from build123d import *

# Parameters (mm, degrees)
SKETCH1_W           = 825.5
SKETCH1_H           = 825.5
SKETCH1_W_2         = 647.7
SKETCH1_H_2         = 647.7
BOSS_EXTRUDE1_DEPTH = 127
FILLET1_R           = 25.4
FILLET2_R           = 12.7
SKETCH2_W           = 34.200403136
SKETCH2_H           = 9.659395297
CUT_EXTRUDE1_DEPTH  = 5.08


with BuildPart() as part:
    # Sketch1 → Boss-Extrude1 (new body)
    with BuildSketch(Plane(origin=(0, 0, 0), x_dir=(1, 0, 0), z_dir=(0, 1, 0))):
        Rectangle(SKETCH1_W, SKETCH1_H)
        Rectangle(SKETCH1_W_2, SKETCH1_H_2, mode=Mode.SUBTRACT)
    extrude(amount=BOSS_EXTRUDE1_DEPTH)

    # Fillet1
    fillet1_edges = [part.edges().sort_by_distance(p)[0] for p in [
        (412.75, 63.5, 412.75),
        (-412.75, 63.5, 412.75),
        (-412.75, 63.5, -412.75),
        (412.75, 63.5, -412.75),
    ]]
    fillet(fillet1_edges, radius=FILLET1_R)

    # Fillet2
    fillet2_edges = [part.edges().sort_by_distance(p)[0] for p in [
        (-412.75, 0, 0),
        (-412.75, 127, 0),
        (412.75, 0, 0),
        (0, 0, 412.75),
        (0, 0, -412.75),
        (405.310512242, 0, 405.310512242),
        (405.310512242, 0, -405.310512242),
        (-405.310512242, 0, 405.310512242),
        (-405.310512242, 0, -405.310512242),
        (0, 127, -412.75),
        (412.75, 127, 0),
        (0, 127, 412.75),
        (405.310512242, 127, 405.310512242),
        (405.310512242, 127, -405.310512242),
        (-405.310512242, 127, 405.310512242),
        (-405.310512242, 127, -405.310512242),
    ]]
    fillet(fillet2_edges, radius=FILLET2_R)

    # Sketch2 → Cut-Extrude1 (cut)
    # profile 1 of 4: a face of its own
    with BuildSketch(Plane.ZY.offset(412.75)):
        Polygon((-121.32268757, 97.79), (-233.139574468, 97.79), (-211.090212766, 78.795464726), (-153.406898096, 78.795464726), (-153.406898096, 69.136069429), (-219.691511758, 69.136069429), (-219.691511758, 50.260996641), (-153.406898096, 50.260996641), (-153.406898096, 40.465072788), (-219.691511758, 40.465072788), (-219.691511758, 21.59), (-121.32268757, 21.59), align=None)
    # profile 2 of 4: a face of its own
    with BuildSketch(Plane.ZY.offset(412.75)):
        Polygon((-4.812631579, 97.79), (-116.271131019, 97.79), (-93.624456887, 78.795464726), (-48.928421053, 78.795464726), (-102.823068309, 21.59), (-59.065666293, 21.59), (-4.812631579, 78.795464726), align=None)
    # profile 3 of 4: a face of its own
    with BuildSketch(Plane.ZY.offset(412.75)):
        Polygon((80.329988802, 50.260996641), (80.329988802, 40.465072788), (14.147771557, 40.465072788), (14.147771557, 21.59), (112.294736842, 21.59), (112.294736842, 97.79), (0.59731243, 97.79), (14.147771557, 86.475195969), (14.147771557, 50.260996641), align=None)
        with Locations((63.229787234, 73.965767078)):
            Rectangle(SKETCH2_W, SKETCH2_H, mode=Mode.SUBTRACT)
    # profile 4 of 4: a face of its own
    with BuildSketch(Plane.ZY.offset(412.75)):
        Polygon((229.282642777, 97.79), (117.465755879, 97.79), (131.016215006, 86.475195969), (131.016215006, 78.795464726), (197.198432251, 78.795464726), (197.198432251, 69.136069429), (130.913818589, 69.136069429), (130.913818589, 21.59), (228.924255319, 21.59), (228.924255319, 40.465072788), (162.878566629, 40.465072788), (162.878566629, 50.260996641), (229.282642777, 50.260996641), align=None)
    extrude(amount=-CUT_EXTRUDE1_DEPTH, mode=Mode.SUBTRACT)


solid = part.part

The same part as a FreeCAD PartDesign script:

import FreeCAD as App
import Part
import Sketcher
Q = App.Units.Quantity


def edges_at(feature, points):
    """Names of the edges that pass closest to the given points."""
    edges = feature.Shape.Edges
    near = lambda p: min(range(len(edges)), key=lambda i: edges[i].distToShape(Part.Vertex(*p))[0])
    return sorted({f"Edge{near(p) + 1}" for p in points})


def add_polygon(sketch, points):
    """Adds a closed chain of lines whose ends are joined by coincident constraints."""
    first, n = sketch.GeometryCount, len(points)
    for a, b in zip(points, points[1:] + points[:1]):
        sketch.addGeometry(Part.LineSegment(App.Vector(*a, 0), App.Vector(*b, 0)), False)
    for i in range(n):
        sketch.addConstraint(Sketcher.Constraint("Coincident", first + i, 2, first + (i + 1) % n, 1))

doc = App.newDocument("Part")
params = doc.addObject("Spreadsheet::Sheet", "Params")
for row, (alias, value) in enumerate([
    ("sketch1_width", "32.5 in"),
    ("sketch1_width2", "25.5 in"),
    ("pad1_length", "5 in"),
    ("fillet_radius", "1 in"),
    ("fillet2_radius", "0.5 in"),
    ("sketch2_width", "3 in"),
    ("pocket1_length", "0.2 in"),
], start=1):
    params.set(f"A{row}", alias)
    params.set(f"B{row}", "=" + value)
    params.setAlias(f"B{row}", alias)

body = doc.addObject("PartDesign::Body", "Body")

sketch1 = body.newObject("Sketcher::SketchObject", "Sketch")
sketch1.AttachmentSupport = (doc.getObject("XZ_Plane"), [""])
sketch1.MapMode = "FlatFace"
add_polygon(sketch1, [(-413, -413), (-413, 413), (413, 413), (413, -413)])
add_polygon(sketch1, [(324, 324), (-324, 324), (-324, -324), (324, -324)])
sketch1.addConstraint(Sketcher.Constraint("Vertical", 0))
sketch1.addConstraint(Sketcher.Constraint("Horizontal", 1))
sketch1.addConstraint(Sketcher.Constraint("Vertical", 2))
sketch1.addConstraint(Sketcher.Constraint("Horizontal", 3))
sketch1.addConstraint(Sketcher.Constraint("Horizontal", 4))
sketch1.addConstraint(Sketcher.Constraint("Vertical", 5))
sketch1.addConstraint(Sketcher.Constraint("Horizontal", 6))
sketch1.addConstraint(Sketcher.Constraint("Vertical", 7))
sketch1.addConstraint(Sketcher.Constraint("Symmetric", 0, 2, 2, 2, -1, 1))
sketch1.addConstraint(Sketcher.Constraint("Symmetric", 4, 2, 6, 2, -1, 1))
sketch1.addConstraint(Sketcher.Constraint("Equal", 3, 0))
sketch1.addConstraint(Sketcher.Constraint("Equal", 6, 5))
sketch1.addConstraint(Sketcher.Constraint("DistanceX", 1, 1, 1, 2, Q("32.5 in")))
sketch1.addConstraint(Sketcher.Constraint("DistanceX", 4, 2, 4, 1, Q("25.5 in")))
sketch1.setExpression("Constraints[20]", "Params.sketch1_width")
sketch1.setExpression("Constraints[21]", "Params.sketch1_width2")
pad1 = body.newObject("PartDesign::Pad", "Pad")
pad1.Profile = sketch1
pad1.setExpression("Length", "Params.pad1_length")
pad1.Reversed = True
doc.recompute()

fillet = body.newObject("PartDesign::Fillet", "Fillet")
fillet.Base = (pad1, edges_at(pad1, [
    (412.75, 63.5, 412.75),
    (-412.75, 63.5, 412.75),
    (-412.75, 63.5, -412.75),
    (412.75, 63.5, -412.75),
]))
fillet.setExpression("Radius", "Params.fillet_radius")
doc.recompute()

fillet2 = body.newObject("PartDesign::Fillet", "Fillet001")
fillet2.Base = (fillet, edges_at(fillet, [
    (-412.75, 0, 0),
    (-412.75, 127, 0),
    (412.75, 0, 0),
    (0, 0, 412.75),
    (0, 0, -412.75),
    (405.311, 0, 405.311),
    (405.311, 0, -405.311),
    (-405.311, 0, 405.311),
    (-405.311, 0, -405.311),
    (0, 127, -412.75),
    (412.75, 127, 0),
    (0, 127, 412.75),
    (405.311, 127, 405.311),
    (405.311, 127, -405.311),
    (-405.311, 127, 405.311),
    (-405.311, 127, -405.311),
]))
fillet2.setExpression("Radius", "Params.fillet2_radius")

sketch2 = body.newObject("Sketcher::SketchObject", "Sketch001")
sketch2.AttachmentSupport = (doc.getObject("YZ_Plane"), [""])
sketch2.MapMode = "FlatFace"
sketch2.AttachmentOffset = App.Placement(App.Vector(0, 0, -16.25 * 25.4), App.Rotation())
add_polygon(sketch2, [(98, -121), (98, -233), (79, -211), (79, -153), (69, -153), (69, -220), (50, -220), (50, -153), (40, -153), (40, -220), (22, -220), (22, -121)])
add_polygon(sketch2, [(98, -5), (98, -116), (79, -94), (79, -49), (22, -103), (22, -59), (79, -5)])
add_polygon(sketch2, [(50, 80), (40, 80), (40, 14), (22, 14), (22, 112), (98, 112), (98, 1), (86, 14), (50, 14)])
add_polygon(sketch2, [(69, 80), (69, 46), (79, 46), (79, 80)])
add_polygon(sketch2, [(98, 229), (98, 117), (86, 131), (79, 131), (79, 197), (69, 197), (69, 131), (22, 131), (22, 229), (40, 229), (40, 163), (50, 163), (50, 229)])
sketch2.addConstraint(Sketcher.Constraint("Vertical", 0))
sketch2.addConstraint(Sketcher.Constraint("Vertical", 2))
sketch2.addConstraint(Sketcher.Constraint("Horizontal", 3))
sketch2.addConstraint(Sketcher.Constraint("Vertical", 4))
sketch2.addConstraint(Sketcher.Constraint("Horizontal", 5))
sketch2.addConstraint(Sketcher.Constraint("Vertical", 6))
sketch2.addConstraint(Sketcher.Constraint("Horizontal", 7))
sketch2.addConstraint(Sketcher.Constraint("Vertical", 8))
sketch2.addConstraint(Sketcher.Constraint("Horizontal", 9))
sketch2.addConstraint(Sketcher.Constraint("Vertical", 10))
sketch2.addConstraint(Sketcher.Constraint("Horizontal", 11))
sketch2.addConstraint(Sketcher.Constraint("Vertical", 12))
sketch2.addConstraint(Sketcher.Constraint("Vertical", 14))
sketch2.addConstraint(Sketcher.Constraint("Vertical", 16))
sketch2.addConstraint(Sketcher.Constraint("Horizontal", 18))
sketch2.addConstraint(Sketcher.Constraint("Horizontal", 19))
sketch2.addConstraint(Sketcher.Constraint("Vertical", 20))
sketch2.addConstraint(Sketcher.Constraint("Horizontal", 21))
sketch2.addConstraint(Sketcher.Constraint("Vertical", 22))
sketch2.addConstraint(Sketcher.Constraint("Horizontal", 23))
sketch2.addConstraint(Sketcher.Constraint("Vertical", 24))
sketch2.addConstraint(Sketcher.Constraint("Horizontal", 26))
sketch2.addConstraint(Sketcher.Constraint("Vertical", 27))
sketch2.addConstraint(Sketcher.Constraint("Vertical", 28))
sketch2.addConstraint(Sketcher.Constraint("Horizontal", 29))
sketch2.addConstraint(Sketcher.Constraint("Vertical", 30))
sketch2.addConstraint(Sketcher.Constraint("Horizontal", 31))
sketch2.addConstraint(Sketcher.Constraint("Vertical", 32))
sketch2.addConstraint(Sketcher.Constraint("Horizontal", 34))
sketch2.addConstraint(Sketcher.Constraint("Vertical", 35))
sketch2.addConstraint(Sketcher.Constraint("Horizontal", 36))
sketch2.addConstraint(Sketcher.Constraint("Vertical", 37))
sketch2.addConstraint(Sketcher.Constraint("Horizontal", 38))
sketch2.addConstraint(Sketcher.Constraint("Vertical", 39))
sketch2.addConstraint(Sketcher.Constraint("Horizontal", 40))
sketch2.addConstraint(Sketcher.Constraint("Vertical", 41))
sketch2.addConstraint(Sketcher.Constraint("Horizontal", 42))
sketch2.addConstraint(Sketcher.Constraint("Vertical", 43))
sketch2.addConstraint(Sketcher.Constraint("Horizontal", 44))
sketch2.addConstraint(Sketcher.Constraint("Parallel", 25, 33))
sketch2.addConstraint(Sketcher.Constraint("Horizontal", 3, 2, 6, 2))
sketch2.addConstraint(Sketcher.Constraint("Horizontal", 5, 2, 8, 2))
sketch2.addConstraint(Sketcher.Constraint("Horizontal", 21, 2, 25, 2))
sketch2.addConstraint(Sketcher.Constraint("Horizontal", 27, 2, 30, 2))
sketch2.addConstraint(Sketcher.Constraint("Vertical", 11, 2, 12, 2))
sketch2.addConstraint(Sketcher.Constraint("Vertical", 2, 2, 13, 2))
sketch2.addConstraint(Sketcher.Constraint("Vertical", 10, 2, 15, 2))
sketch2.addConstraint(Sketcher.Constraint("Vertical", 14, 2, 17, 2))
sketch2.addConstraint(Sketcher.Constraint("Vertical", 8, 2, 19, 2))
sketch2.addConstraint(Sketcher.Constraint("Vertical", 16, 2, 21, 2))
sketch2.addConstraint(Sketcher.Constraint("Vertical", 18, 2, 23, 2))
sketch2.addConstraint(Sketcher.Constraint("Vertical", 6, 2, 26, 2))
sketch2.addConstraint(Sketcher.Constraint("Vertical", 4, 2, 28, 2))
sketch2.addConstraint(Sketcher.Constraint("Vertical", 17, 2, 29, 2))
sketch2.addConstraint(Sketcher.Constraint("Vertical", 24, 2, 32, 2))
sketch2.addConstraint(Sketcher.Constraint("Vertical", 25, 2, 33, 2))
sketch2.addConstraint(Sketcher.Constraint("Vertical", 30, 2, 34, 2))
sketch2.addConstraint(Sketcher.Constraint("Vertical", 31, 2, 36, 2))
sketch2.addConstraint(Sketcher.Constraint("Vertical", 22, 2, 38, 2))
sketch2.addConstraint(Sketcher.Constraint("Vertical", 20, 2, 40, 2))
sketch2.addConstraint(Sketcher.Constraint("Vertical", 27, 2, 42, 2))
sketch2.addConstraint(Sketcher.Constraint("Equal", 5, 9))
sketch2.addConstraint(Sketcher.Constraint("Equal", 0, 32))
sketch2.addConstraint(Sketcher.Constraint("Equal", 27, 35))
sketch2.addConstraint(Sketcher.Constraint("Equal", 8, 37))
sketch2.addConstraint(Sketcher.Constraint("DistanceX", 11, 1, 11, 2, Q("3 in")))
sketch2.addConstraint(Sketcher.Constraint("DistanceX", -1, 1, 0, 2, Q("3.85 in")))
sketch2.addConstraint(Sketcher.Constraint("DistanceX", 26, 2, 26, 1, Q("36.214199 mm")))
sketch2.addConstraint(Sketcher.Constraint("DistanceY", 12, 2, 12, 1, Q("111.458499 mm")))
sketch2.addConstraint(Sketcher.Constraint("DistanceX", 34, 2, 34, 1, Q("7.679731 mm")))
sketch2.addConstraint(Sketcher.Constraint("DistanceX", 38, 2, 38, 1, Q("47.546069 mm")))
sketch2.addConstraint(Sketcher.Constraint("DistanceY", 41, 2, 41, 1, Q("66.045689 mm")))
sketch2.addConstraint(Sketcher.Constraint("DistanceY", 2, 2, -1, 1, Q("153.406898 mm")))
sketch2.addConstraint(Sketcher.Constraint("DistanceY", 4, 2, 1, 2, Q("8.601299 mm")))
sketch2.addConstraint(Sketcher.Constraint("Distance", 13, Q("29.557811 mm")))
sketch2.addConstraint(Sketcher.Constraint("Distance", 25, Q("17.653321 mm")))
sketch2.addConstraint(Sketcher.Constraint("DistanceX", 3, 2, 3, 1, Q("9.659395 mm")))
sketch2.addConstraint(Sketcher.Constraint("DistanceY", 0, 2, 0, 1, Q("111.816887 mm")))
sketch2.addConstraint(Sketcher.Constraint("DistanceY", 2, 1, 2, 2, Q("57.683315 mm")))
sketch2.addConstraint(Sketcher.Constraint("DistanceY", 10, 1, 10, 2, Q("98.368824 mm")))
sketch2.addConstraint(Sketcher.Constraint("DistanceY", 14, 1, 14, 2, Q("44.696036 mm")))
sketch2.addConstraint(Sketcher.Constraint("DistanceY", 16, 1, 16, 2, Q("43.757402 mm")))
sketch2.addConstraint(Sketcher.Constraint("DistanceY", 20, 2, 20, 1, Q("66.182217 mm")))
sketch2.addConstraint(Sketcher.Constraint("DistanceY", 22, 1, 22, 2, Q("98.146965 mm")))
sketch2.addConstraint(Sketcher.Constraint("DistanceY", 28, 2, 28, 1, Q("34.200403 mm")))
sketch2.addConstraint(Sketcher.Constraint("DistanceY", 39, 1, 39, 2, Q("98.010437 mm")))
sketch2.addConstraint(Sketcher.Constraint("DistanceY", 12, 2, -1, 1, Q("116.271131 mm")))
sketch2.addConstraint(Sketcher.Constraint("DistanceY", 15, 2, -1, 1, Q("102.823068 mm")))
sketch2.addConstraint(Sketcher.Constraint("DistanceY", -1, 1, 19, 2, Q("80.329989 mm")))
sketch2.addConstraint(Sketcher.Constraint("DistanceY", -1, 1, 37, 2, Q("130.913819 mm")))
sketch2.setExpression("Constraints[110]", "Params.sketch2_width")
pocket1 = body.newObject("PartDesign::Pocket", "Pocket")
pocket1.Profile = sketch2
pocket1.setExpression("Length", "Params.pocket1_length")
pocket1.Reversed = True

doc.recompute()
